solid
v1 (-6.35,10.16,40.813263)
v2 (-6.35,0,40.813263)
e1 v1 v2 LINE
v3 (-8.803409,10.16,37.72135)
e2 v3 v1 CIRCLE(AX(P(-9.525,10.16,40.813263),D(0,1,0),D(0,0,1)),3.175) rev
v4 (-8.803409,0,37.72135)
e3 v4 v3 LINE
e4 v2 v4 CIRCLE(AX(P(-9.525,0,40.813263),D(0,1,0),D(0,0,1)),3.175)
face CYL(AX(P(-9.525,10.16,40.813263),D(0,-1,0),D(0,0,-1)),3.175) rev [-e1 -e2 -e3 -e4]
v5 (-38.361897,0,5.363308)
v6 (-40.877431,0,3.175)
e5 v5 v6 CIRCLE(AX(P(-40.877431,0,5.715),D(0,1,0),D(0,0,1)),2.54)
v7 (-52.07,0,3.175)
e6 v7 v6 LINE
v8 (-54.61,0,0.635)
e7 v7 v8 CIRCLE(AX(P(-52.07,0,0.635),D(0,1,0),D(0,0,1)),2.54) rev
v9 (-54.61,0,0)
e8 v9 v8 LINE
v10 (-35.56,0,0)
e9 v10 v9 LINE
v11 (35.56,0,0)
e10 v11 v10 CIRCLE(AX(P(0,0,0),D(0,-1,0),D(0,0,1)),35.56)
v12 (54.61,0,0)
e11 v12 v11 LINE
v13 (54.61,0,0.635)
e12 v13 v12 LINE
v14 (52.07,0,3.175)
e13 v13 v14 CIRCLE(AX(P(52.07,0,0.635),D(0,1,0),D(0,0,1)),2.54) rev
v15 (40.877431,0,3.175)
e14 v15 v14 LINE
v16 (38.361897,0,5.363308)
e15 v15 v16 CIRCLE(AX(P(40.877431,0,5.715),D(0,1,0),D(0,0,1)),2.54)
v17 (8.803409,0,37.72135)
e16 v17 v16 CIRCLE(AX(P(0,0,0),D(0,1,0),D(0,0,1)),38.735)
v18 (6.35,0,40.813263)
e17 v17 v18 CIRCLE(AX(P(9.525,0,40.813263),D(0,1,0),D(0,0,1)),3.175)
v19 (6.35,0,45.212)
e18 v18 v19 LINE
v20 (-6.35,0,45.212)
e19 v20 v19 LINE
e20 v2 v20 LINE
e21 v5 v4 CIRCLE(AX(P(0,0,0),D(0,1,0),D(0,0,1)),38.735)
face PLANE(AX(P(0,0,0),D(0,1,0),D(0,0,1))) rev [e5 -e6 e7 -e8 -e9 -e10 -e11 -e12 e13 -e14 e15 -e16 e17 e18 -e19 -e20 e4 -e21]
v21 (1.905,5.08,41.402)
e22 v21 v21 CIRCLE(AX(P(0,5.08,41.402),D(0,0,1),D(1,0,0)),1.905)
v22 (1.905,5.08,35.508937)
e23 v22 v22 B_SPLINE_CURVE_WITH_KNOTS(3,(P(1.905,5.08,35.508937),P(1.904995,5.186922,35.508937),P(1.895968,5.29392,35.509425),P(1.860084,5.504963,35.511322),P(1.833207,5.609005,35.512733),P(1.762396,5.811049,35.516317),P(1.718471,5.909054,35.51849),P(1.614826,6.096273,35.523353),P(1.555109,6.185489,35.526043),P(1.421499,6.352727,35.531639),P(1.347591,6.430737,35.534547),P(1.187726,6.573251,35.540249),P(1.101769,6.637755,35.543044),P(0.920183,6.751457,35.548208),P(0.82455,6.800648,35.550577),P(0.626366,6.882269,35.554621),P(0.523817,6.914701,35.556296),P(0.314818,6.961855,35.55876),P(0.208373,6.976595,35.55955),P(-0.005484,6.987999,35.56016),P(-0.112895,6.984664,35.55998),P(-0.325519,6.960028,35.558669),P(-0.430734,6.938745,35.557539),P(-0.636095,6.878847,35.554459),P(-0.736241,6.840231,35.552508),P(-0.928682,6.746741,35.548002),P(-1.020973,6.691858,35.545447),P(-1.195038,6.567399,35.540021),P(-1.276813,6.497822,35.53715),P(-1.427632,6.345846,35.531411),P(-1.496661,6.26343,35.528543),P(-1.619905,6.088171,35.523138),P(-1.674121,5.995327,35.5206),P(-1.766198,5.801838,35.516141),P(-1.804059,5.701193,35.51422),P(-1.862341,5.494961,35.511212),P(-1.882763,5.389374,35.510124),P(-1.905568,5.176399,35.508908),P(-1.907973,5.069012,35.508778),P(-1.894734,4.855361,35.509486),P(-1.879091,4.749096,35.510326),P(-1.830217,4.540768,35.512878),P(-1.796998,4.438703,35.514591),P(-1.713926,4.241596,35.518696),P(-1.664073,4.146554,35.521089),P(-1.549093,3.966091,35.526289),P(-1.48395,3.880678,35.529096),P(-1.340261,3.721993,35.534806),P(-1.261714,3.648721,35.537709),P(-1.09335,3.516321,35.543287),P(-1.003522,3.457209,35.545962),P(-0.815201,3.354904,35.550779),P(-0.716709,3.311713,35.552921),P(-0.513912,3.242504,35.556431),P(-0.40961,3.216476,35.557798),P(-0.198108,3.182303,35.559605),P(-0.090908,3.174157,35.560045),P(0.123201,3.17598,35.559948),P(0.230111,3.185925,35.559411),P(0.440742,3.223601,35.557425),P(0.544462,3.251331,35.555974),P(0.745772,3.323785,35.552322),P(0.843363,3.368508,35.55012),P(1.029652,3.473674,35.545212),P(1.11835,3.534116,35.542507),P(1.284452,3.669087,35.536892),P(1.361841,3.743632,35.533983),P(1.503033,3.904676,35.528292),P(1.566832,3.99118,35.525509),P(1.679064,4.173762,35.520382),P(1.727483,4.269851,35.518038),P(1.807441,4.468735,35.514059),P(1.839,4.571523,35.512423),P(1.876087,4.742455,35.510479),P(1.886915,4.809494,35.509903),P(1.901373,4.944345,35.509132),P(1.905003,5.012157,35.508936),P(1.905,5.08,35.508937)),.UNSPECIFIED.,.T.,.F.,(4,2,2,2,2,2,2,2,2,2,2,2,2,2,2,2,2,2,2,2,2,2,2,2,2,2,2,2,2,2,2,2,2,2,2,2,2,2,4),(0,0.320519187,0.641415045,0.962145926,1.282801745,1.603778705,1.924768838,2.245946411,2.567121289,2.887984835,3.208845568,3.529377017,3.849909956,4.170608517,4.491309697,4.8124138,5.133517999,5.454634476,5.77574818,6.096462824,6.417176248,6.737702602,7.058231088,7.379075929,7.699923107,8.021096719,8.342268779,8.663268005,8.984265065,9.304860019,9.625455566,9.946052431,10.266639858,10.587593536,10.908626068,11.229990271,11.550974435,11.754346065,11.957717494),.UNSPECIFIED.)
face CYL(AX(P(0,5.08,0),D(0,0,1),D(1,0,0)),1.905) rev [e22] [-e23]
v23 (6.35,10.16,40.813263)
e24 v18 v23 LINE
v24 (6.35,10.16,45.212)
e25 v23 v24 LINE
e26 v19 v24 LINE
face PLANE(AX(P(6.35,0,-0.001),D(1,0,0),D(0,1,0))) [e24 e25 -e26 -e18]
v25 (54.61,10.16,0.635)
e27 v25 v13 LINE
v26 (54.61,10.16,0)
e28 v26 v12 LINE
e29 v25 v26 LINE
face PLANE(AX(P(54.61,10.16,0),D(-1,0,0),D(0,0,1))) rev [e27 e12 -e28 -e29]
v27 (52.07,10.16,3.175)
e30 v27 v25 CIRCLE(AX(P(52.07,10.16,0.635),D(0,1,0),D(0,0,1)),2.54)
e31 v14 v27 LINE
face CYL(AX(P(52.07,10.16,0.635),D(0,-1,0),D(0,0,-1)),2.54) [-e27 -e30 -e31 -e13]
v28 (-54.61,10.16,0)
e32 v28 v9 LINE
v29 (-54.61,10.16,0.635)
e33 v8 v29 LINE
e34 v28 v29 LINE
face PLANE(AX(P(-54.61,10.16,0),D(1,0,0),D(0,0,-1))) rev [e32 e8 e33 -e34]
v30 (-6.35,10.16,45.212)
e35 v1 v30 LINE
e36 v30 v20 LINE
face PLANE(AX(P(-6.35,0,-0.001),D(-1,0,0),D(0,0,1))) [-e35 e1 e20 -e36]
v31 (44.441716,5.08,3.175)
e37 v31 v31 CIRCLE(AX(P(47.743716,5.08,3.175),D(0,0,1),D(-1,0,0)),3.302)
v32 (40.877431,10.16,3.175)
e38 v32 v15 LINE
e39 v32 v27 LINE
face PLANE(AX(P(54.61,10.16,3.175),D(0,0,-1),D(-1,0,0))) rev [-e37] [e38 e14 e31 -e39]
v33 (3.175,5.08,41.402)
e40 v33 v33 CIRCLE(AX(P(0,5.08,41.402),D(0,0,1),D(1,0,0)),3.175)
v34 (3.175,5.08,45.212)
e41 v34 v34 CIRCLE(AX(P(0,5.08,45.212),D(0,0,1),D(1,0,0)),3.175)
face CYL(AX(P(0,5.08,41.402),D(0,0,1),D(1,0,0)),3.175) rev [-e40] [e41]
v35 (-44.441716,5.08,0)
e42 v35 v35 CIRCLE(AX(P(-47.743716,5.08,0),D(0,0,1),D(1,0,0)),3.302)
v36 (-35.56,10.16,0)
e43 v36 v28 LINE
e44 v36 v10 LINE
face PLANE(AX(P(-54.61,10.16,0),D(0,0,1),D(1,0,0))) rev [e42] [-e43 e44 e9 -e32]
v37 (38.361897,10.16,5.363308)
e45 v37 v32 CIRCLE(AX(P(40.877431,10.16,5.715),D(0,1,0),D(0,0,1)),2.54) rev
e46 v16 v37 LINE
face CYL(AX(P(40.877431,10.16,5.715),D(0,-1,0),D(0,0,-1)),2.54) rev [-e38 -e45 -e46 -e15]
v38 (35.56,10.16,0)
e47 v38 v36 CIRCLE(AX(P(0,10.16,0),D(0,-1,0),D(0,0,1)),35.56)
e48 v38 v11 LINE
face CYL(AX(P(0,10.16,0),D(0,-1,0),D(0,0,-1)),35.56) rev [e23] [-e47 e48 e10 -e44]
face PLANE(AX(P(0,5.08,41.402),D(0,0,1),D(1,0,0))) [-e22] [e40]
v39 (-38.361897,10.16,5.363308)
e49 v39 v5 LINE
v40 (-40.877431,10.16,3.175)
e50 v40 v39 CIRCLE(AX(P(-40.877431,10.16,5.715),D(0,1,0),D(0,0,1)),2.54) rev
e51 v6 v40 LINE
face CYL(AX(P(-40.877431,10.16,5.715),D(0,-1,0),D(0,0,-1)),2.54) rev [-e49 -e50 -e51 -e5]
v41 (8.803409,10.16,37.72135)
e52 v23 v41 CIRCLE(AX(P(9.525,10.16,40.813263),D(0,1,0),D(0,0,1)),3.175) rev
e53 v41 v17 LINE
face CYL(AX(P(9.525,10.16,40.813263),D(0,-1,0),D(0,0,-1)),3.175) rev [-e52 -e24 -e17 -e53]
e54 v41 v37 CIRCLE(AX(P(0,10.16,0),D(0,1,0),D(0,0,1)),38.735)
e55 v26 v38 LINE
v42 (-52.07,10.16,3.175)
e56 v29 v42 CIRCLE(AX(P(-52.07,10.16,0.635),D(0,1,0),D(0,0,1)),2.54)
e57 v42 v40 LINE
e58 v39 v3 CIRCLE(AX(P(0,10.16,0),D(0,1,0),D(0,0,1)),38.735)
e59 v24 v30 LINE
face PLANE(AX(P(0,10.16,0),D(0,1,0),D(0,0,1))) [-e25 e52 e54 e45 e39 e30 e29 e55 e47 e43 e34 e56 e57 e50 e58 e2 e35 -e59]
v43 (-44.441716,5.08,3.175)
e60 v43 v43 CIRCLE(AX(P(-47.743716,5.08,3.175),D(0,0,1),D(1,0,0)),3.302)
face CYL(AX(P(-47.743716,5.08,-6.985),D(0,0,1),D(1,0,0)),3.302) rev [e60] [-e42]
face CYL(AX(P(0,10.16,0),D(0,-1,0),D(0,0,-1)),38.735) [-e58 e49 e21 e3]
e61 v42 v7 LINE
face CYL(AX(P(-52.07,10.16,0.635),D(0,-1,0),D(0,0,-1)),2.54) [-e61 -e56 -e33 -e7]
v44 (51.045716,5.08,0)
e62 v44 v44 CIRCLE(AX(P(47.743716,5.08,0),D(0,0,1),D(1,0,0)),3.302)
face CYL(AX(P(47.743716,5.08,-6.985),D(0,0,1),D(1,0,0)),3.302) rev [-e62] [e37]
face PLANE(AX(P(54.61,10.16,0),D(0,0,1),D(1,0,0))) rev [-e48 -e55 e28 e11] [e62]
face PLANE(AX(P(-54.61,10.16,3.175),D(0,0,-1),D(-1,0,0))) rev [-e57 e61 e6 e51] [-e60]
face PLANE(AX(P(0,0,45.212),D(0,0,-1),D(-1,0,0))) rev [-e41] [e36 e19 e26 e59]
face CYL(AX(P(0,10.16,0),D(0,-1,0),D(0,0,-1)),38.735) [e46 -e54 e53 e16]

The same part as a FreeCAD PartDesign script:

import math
import FreeCAD as App
import Part
import Sketcher

V = App.Vector
Q = App.Units.Quantity


def edges_at(feature, points):
    """Names of the edges that pass closest to the given points."""
    edges = feature.Shape.Edges
    near = lambda p: min(range(len(edges)), key=lambda i: edges[i].distToShape(Part.Vertex(*p))[0])
    return sorted({f"Edge{near(p) + 1}" for p in points})


def add_polygon(sketch, points):
    """Adds a closed chain of lines whose ends are joined by coincident constraints."""
    first, n = sketch.GeometryCount, len(points)
    for a, b in zip(points, points[1:] + points[:1]):
        sketch.addGeometry(Part.LineSegment(App.Vector(*a, 0), App.Vector(*b, 0)), False)
    for i in range(n):
        sketch.addConstraint(Sketcher.Constraint("Coincident", first + i, 2, first + (i + 1) % n, 1))

doc = App.newDocument("Part")
body = doc.addObject("PartDesign::Body", "Body")

# Sketch on XZ plane
sketch1 = body.newObject("Sketcher::SketchObject", "Sketch")
sketch1.AttachmentSupport = (doc.getObject("XZ_Plane"), [""])
sketch1.MapMode = "FlatFace"
sketch1.addGeometry(Part.LineSegment(V(-54.6, 0, 0), V(-54.6, 3.2, 0)), False)
sketch1.addGeometry(Part.LineSegment(V(-54.6, 3.2, 0), V(-38.6, 3.2, 0)), False)
sketch1.addGeometry(Part.ArcOfCircle(Part.Circle(V(0, 0, 0), V(0, 0, 1), 38.7), math.radians(5), math.radians(175)), False)
sketch1.addGeometry(Part.LineSegment(V(38.6, 3.2, 0), V(54.6, 3.2, 0)), False)
sketch1.addGeometry(Part.LineSegment(V(54.6, 3.2, 0), V(54.6, 0, 0)), False)
sketch1.addGeometry(Part.LineSegment(V(54.6, 0, 0), V(35.6, 0, 0)), False)
sketch1.addGeometry(Part.ArcOfCircle(Part.Circle(V(0, 0, 0), V(0, 0, 1), 35.6), math.radians(0), math.radians(180)), False)
sketch1.addGeometry(Part.LineSegment(V(-35.6, 0, 0), V(-54.6, 0, 0)), False)
sketch1.addConstraint(Sketcher.Constraint("Coincident", 0, 2, 1, 1))
sketch1.addConstraint(Sketcher.Constraint("Coincident", 1, 2, 2, 2))
sketch1.addConstraint(Sketcher.Constraint("Coincident", 2, 1, 3, 1))
sketch1.addConstraint(Sketcher.Constraint("Coincident", 3, 2, 4, 1))
sketch1.addConstraint(Sketcher.Constraint("Coincident", 4, 2, 5, 1))
sketch1.addConstraint(Sketcher.Constraint("Coincident", 5, 2, 6, 1))
sketch1.addConstraint(Sketcher.Constraint("Coincident", 6, 2, 7, 1))
sketch1.addConstraint(Sketcher.Constraint("Coincident", 7, 2, 0, 1))
sketch1.addConstraint(Sketcher.Constraint("Vertical", 0))
sketch1.addConstraint(Sketcher.Constraint("Horizontal", 1))
sketch1.addConstraint(Sketcher.Constraint("Horizontal", 3))
sketch1.addConstraint(Sketcher.Constraint("Vertical", 4))
sketch1.addConstraint(Sketcher.Constraint("Horizontal", 5))
sketch1.addConstraint(Sketcher.Constraint("Horizontal", 7))
sketch1.addConstraint(Sketcher.Constraint("Coincident", 2, 3, -1, 1))
sketch1.addConstraint(Sketcher.Constraint("Coincident", 6, 3, -1, 1))
sketch1.addConstraint(Sketcher.Constraint("Symmetric", 4, 2, 7, 2, -1, 1))
sketch1.addConstraint(Sketcher.Constraint("PointOnObject", 4, 2, -1))
sketch1.addConstraint(Sketcher.Constraint("Horizontal", 1, 2, 2, 1))
sketch1.addConstraint(Sketcher.Constraint("Radius", 6, Q("1.4 in")))
sketch1.addConstraint(Sketcher.Constraint("Radius", 2, Q("1.525 in")))
sketch1.addConstraint(Sketcher.Constraint("DistanceX", 5, 2, 5, 1, Q("0.75 in")))
sketch1.addConstraint(Sketcher.Constraint("DistanceY", 0, 1, 0, 2, Q("0.125 in")))
pad1 = body.newObject("PartDesign::Pad", "Pad")
pad1.Profile = sketch1
pad1.Length = Q("0.4 in")
pad1.Reversed = True
doc.recompute()

fillet = body.newObject("PartDesign::Fillet", "Fillet")
fillet.Base = (pad1, edges_at(pad1, [(38.605, 5.08, 3.175), (-38.605, 5.08, 3.175)]))
fillet.Radius = Q("0.1 in")

# Sketch on XY plane
sketch2 = body.newObject("Sketcher::SketchObject", "Sketch001")
sketch2.AttachmentSupport = (doc.getObject("XY_Plane"), [""])
sketch2.MapMode = "FlatFace"
sketch2.AttachmentOffset = App.Placement(V(0, 0, 0.125 * 25.4), App.Rotation())
sketch2.addGeometry(Part.Circle(V(-47.7, 5.1, 0), V(0, 0, 1), 3.3), False)
sketch2.addGeometry(Part.Circle(V(47.7, 5.1, 0), V(0, 0, 1), 3.3), False)
sketch2.addConstraint(Sketcher.Constraint("Equal", 0, 1))
sketch2.addConstraint(Sketcher.Constraint("Symmetric", 0, 3, 1, 3, -2))
sketch2.addConstraint(Sketcher.Constraint("Diameter", 0, Q("0.26 in")))
sketch2.addConstraint(Sketcher.Constraint("DistanceY", -1, 1, 0, 3, Q("0.2 in")))
sketch2.addConstraint(Sketcher.Constraint("DistanceX", 0, 3, 1, 3, Q("95.487431 mm")))
pocket1 = body.newObject("PartDesign::Pocket", "Pocket")
pocket1.Profile = sketch2
pocket1.Length = Q("0.4 in")
doc.recompute()

fillet2 = body.newObject("PartDesign::Fillet", "Fillet001")
fillet2.Base = (pocket1, edges_at(pocket1, [(54.61, 5.08, 3.175), (-54.61, 5.08, 3.175)]))
fillet2.Radius = Q("0.1 in")

# Sketch on XY plane
sketch3 = body.newObject("Sketcher::SketchObject", "Sketch002")
sketch3.AttachmentSupport = (doc.getObject("XY_Plane"), [""])
sketch3.MapMode = "FlatFace"
sketch3.AttachmentOffset = App.Placement(V(0, 0, 38.210963), App.Rotation())
add_polygon(sketch3, [(-6, 10), (-6, 0), (6, 0), (6, 10)])  # lines 0-3
sketch3.addConstraint(Sketcher.Constraint("Vertical", 0))
sketch3.addConstraint(Sketcher.Constraint("Horizontal", 1))
sketch3.addConstraint(Sketcher.Constraint("Vertical", 2))
sketch3.addConstraint(Sketcher.Constraint("Horizontal", 3))
sketch3.addConstraint(Sketcher.Constraint("Symmetric", 0, 2, 1, 2, -1, 1))
sketch3.addConstraint(Sketcher.Constraint("DistanceX", 1, 1, 1, 2, Q("0.5 in")))
sketch3.addConstraint(Sketcher.Constraint("DistanceY", 0, 2, 0, 1, Q("0.4 in")))
pad2 = body.newObject("PartDesign::Pad", "Pad001")
pad2.Profile = sketch3
pad2.Length = 0.524037

# Sketch on XY plane
sketch4 = body.newObject("Sketcher::SketchObject", "Sketch003")
sketch4.AttachmentSupport = (doc.getObject("XY_Plane"), [""])
sketch4.MapMode = "FlatFace"
sketch4.AttachmentOffset = App.Placement(V(0, 0, 1.525 * 25.4), App.Rotation())
add_polygon(sketch4, [(-6, 10), (-6, 0), (6, 0), (6, 10)])  # lines 0-3
sketch4.addConstraint(Sketcher.Constraint("Vertical", 0))
sketch4.addConstraint(Sketcher.Constraint("Horizontal", 1))
sketch4.addConstraint(Sketcher.Constraint("Vertical", 2))
sketch4.addConstraint(Sketcher.Constraint("Horizontal", 3))
sketch4.addConstraint(Sketcher.Constraint("Symmetric", 0, 2, 1, 2, -1, 1))
sketch4.addConstraint(Sketcher.Constraint("DistanceX", 1, 1, 1, 2, Q("0.5 in")))
sketch4.addConstraint(Sketcher.Constraint("DistanceY", 0, 2, 0, 1, Q("0.4 in")))
pad3 = body.newObject("PartDesign::Pad", "Pad002")
pad3.Profile = sketch4
pad3.Length = Q("0.255 in")
doc.recompute()

fillet3 = body.newObject("PartDesign::Fillet", "Fillet002")
fillet3.Base = (pad3, edges_at(pad3, [(6.35, 5.08, 38.211), (-6.35, 5.08, 38.211)]))
fillet3.Radius = Q("0.125 in")

# Sketch on XY plane
sketch5 = body.newObject("Sketcher::SketchObject", "Sketch004")
sketch5.AttachmentSupport = (doc.getObject("XY_Plane"), [""])
sketch5.MapMode = "FlatFace"
sketch5.AttachmentOffset = App.Placement(V(0, 0, 1.78 * 25.4), App.Rotation())
sketch5.addGeometry(Part.Circle(V(0, 5.1, 0), V(0, 0, 1), 3.2), False)
sketch5.addConstraint(Sketcher.Constraint("PointOnObject", 0, 3, -2))
sketch5.addConstraint(Sketcher.Constraint("Diameter", 0, Q("0.25 in")))
sketch5.addConstraint(Sketcher.Constraint("DistanceY", -1, 1, 0, 3, Q("0.2 in")))
pocket2 = body.newObject("PartDesign::Pocket", "Pocket001")
pocket2.Profile = sketch5
pocket2.Length = Q("0.15 in")

# Sketch on XY plane
sketch6 = body.newObject("Sketcher::SketchObject", "Sketch005")
sketch6.AttachmentSupport = (doc.getObject("XY_Plane"), [""])
sketch6.MapMode = "FlatFace"
sketch6.AttachmentOffset = App.Placement(V(0, 0, 1.63 * 25.4), App.Rotation())
sketch6.addGeometry(Part.Circle(V(0, 5.1, 0), V(0, 0, 1), 1.9), False)
sketch6.addConstraint(Sketcher.Constraint("PointOnObject", 0, 3, -2))
sketch6.addConstraint(Sketcher.Constraint("Diameter", 0, Q("0.15 in")))
sketch6.addConstraint(Sketcher.Constraint("DistanceY", -1, 1, 0, 3, Q("0.2 in")))
pocket3 = body.newObject("PartDesign::Pocket", "Pocket002")
pocket3.Profile = sketch6
pocket3.Type = "ThroughAll"

doc.recompute()
